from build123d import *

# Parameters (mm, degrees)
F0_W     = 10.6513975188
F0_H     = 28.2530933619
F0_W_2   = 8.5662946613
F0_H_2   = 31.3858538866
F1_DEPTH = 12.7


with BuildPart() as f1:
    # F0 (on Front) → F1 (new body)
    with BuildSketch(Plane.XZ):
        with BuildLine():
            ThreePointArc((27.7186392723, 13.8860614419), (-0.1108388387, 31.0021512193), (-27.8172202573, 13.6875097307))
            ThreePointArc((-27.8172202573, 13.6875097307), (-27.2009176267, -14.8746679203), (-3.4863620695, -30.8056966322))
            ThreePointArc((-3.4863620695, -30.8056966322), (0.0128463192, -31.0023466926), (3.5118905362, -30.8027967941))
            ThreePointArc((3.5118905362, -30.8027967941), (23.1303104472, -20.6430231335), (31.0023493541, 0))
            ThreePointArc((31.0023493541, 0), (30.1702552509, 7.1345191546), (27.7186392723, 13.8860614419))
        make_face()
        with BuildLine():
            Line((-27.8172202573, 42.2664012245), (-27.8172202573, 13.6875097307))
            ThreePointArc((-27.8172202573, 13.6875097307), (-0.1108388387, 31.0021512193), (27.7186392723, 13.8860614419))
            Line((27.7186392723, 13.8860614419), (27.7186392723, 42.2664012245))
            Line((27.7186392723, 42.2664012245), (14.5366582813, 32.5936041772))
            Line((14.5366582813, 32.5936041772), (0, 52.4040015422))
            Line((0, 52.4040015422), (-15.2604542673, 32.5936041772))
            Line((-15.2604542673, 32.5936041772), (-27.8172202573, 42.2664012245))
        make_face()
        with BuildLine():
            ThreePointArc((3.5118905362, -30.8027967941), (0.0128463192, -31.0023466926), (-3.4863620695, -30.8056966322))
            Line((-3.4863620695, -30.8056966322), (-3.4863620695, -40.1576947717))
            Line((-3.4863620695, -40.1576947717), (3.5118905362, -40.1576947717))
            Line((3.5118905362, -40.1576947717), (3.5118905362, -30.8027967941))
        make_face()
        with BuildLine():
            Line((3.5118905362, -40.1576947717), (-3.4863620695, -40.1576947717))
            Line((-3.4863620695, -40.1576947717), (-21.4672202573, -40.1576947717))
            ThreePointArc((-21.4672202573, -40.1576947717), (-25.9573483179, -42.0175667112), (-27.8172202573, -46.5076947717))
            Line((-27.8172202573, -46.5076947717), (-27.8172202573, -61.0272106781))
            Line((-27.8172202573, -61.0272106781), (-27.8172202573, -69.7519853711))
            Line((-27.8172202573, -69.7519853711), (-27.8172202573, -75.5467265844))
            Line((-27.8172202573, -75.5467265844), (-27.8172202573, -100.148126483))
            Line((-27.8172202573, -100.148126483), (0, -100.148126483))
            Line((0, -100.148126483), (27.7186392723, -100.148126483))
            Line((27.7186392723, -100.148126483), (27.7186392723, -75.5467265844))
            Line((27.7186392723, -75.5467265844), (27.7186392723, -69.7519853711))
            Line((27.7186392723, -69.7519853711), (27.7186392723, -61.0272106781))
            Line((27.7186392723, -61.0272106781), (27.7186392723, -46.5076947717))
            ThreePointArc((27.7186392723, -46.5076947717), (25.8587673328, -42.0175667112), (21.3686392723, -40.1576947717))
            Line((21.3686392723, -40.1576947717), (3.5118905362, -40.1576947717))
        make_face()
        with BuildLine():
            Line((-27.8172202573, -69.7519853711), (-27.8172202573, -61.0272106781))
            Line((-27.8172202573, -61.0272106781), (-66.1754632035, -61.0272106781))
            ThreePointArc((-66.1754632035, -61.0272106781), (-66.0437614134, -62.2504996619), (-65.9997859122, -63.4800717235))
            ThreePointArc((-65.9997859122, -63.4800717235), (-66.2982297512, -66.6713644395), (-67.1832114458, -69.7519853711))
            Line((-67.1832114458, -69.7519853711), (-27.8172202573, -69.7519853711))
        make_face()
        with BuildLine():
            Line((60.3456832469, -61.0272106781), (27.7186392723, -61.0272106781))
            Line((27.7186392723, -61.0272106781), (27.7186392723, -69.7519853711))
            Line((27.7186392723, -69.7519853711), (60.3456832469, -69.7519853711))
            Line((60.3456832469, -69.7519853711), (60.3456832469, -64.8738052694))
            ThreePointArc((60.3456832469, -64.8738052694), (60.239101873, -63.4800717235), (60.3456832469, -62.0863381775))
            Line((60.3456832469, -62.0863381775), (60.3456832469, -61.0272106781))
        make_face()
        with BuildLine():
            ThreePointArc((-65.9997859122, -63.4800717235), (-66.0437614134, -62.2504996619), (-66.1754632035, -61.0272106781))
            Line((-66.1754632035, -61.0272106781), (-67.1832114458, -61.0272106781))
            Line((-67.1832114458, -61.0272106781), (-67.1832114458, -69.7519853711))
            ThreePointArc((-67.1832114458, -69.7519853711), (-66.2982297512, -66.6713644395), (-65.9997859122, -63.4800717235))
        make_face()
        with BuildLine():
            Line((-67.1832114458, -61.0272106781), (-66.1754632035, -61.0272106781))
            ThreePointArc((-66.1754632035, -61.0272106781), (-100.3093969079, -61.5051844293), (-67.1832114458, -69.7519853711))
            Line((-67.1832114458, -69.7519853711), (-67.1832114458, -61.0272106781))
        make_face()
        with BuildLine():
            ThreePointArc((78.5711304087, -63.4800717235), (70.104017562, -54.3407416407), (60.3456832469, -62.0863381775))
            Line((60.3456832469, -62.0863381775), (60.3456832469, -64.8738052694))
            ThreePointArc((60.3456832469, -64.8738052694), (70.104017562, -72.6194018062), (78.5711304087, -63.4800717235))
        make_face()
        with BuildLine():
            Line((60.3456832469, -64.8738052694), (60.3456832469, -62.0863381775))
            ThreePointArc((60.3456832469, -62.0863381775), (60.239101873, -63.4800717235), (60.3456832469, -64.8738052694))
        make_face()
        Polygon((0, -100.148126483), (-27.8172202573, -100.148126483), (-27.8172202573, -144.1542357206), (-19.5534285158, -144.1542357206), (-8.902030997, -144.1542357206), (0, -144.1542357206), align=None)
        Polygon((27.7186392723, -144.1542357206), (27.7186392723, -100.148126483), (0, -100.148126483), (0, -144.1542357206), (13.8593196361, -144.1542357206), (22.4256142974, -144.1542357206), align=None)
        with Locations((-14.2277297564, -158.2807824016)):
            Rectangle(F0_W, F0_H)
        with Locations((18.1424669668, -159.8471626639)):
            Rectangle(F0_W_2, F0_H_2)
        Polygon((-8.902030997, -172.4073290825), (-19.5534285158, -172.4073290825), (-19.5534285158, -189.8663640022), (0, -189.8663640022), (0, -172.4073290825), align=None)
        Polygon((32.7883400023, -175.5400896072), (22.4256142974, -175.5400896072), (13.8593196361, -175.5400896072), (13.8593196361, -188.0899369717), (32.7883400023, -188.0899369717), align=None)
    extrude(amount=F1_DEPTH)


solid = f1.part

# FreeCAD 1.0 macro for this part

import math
import FreeCAD as App
import Part
import Sketcher

V = App.Vector
Q = App.Units.Quantity

doc = App.newDocument("Part")
body = doc.addObject("PartDesign::Body", "Body")

sketch1 = doc.addObject("Sketcher::SketchObject", "Sketch")
body.addObject(sketch1)
sketch1.AttachmentSupport = (doc.XZ_Plane, [""])
sketch1.MapMode = "FlatFace"
sketch1.addGeometry([
    Part.ArcOfCircle(Part.Circle(V(0, 0, 0), V(0, 0, 1), 31.002349), math.radians(153.80043), math.radians(263.543158)),
    Part.LineSegment(V(-3.486362, -30.805697, 0), V(-3.486362, -40.157695, 0)),
    Part.LineSegment(V(-3.486362, -40.157695, 0), V(-21.46722, -40.157695, 0)),
    Part.ArcOfCircle(Part.Circle(V(-21.46722, -46.507695, 0), V(0, 0, 1), 6.35), math.radians(90), math.radians(180)),
    Part.LineSegment(V(-27.81722, -46.507695, 0), V(-27.81722, -61.027211, 0)),
    Part.LineSegment(V(-27.81722, -61.027211, 0), V(-66.175463, -61.027211, 0)),
    Part.ArcOfCircle(Part.Circle(V(-83.211429, -63.480072, 0), V(0, 0, 1), 17.211644), math.radians(8.193215), math.radians(338.629371)),
    Part.LineSegment(V(-67.183211, -69.751985, 0), V(-27.81722, -69.751985, 0)),
    Part.LineSegment(V(-27.81722, -69.751985, 0), V(-27.81722, -144.154236, 0)),
    Part.LineSegment(V(-27.81722, -144.154236, 0), V(-19.553429, -144.154236, 0)),
    Part.LineSegment(V(-19.553429, -144.154236, 0), V(-19.553429, -189.866364, 0)),
    Part.LineSegment(V(-19.553429, -189.866364, 0), V(0, -189.866364, 0)),
    Part.LineSegment(V(0, -189.866364, 0), V(0, -172.407329, 0)),
    Part.LineSegment(V(0, -172.407329, 0), V(-8.902031, -172.407329, 0)),
    Part.LineSegment(V(-8.902031, -172.407329, 0), V(-8.902031, -144.154236, 0)),
    Part.LineSegment(V(-8.902031, -144.154236, 0), V(13.85932, -144.154236, 0)),
    Part.LineSegment(V(13.85932, -144.154236, 0), V(13.85932, -175.54009, 0)),
    Part.LineSegment(V(13.85932, -175.54009, 0), V(13.85932, -188.089937, 0)),
    Part.LineSegment(V(13.85932, -188.089937, 0), V(32.78834, -188.089937, 0)),
    Part.LineSegment(V(32.78834, -188.089937, 0), V(32.78834, -175.54009, 0)),
    Part.LineSegment(V(32.78834, -175.54009, 0), V(22.425614, -175.54009, 0)),
    Part.LineSegment(V(22.425614, -175.54009, 0), V(22.425614, -144.154236, 0)),
    Part.LineSegment(V(22.425614, -144.154236, 0), V(27.718639, -144.154236, 0)),
    Part.LineSegment(V(27.718639, -144.154236, 0), V(27.718639, -69.751985, 0)),
    Part.LineSegment(V(27.718639, -69.751985, 0), V(60.345683, -69.751985, 0)),
    Part.LineSegment(V(60.345683, -69.751985, 0), V(60.345683, -64.873805, 0)),
    Part.ArcOfCircle(Part.Circle(V(69.405116, -63.480072, 0), V(0, 0, 1), 9.166014), math.radians(-171.253994), math.radians(0)),
    Part.ArcOfCircle(Part.Circle(V(69.405116, -63.480072, 0), V(0, 0, 1), 9.166014), math.radians(0), math.radians(171.253994)),
    Part.LineSegment(V(60.345683, -62.086338, 0), V(60.345683, -61.027211, 0)),
    Part.LineSegment(V(60.345683, -61.027211, 0), V(27.718639, -61.027211, 0)),
    Part.LineSegment(V(27.718639, -61.027211, 0), V(27.718639, -46.507695, 0)),
    Part.ArcOfCircle(Part.Circle(V(21.368639, -46.507695, 0), V(0, 0, 1), 6.35), math.radians(0), math.radians(90)),
    Part.LineSegment(V(21.368639, -40.157695, 0), V(3.511891, -40.157695, 0)),
    Part.LineSegment(V(3.511891, -40.157695, 0), V(3.511891, -30.802797, 0)),
    Part.ArcOfCircle(Part.Circle(V(0, 0, 0), V(0, 0, 1), 31.002349), math.radians(-83.495675), math.radians(0)),
    Part.ArcOfCircle(Part.Circle(V(0, 0, 0), V(0, 0, 1), 31.002349), math.radians(0), math.radians(26.609255)),
    Part.LineSegment(V(27.718639, 13.886061, 0), V(27.718639, 42.266401, 0)),
    Part.LineSegment(V(27.718639, 42.266401, 0), V(14.536658, 32.593604, 0)),
    Part.LineSegment(V(14.536658, 32.593604, 0), V(0, 52.404002, 0)),
    Part.LineSegment(V(0, 52.404002, 0), V(-15.260454, 32.593604, 0)),
    Part.LineSegment(V(-15.260454, 32.593604, 0), V(-27.81722, 42.266401, 0)),
    Part.LineSegment(V(-27.81722, 42.266401, 0), V(-27.81722, 13.68751, 0)),
], False)
sketch1.addConstraint([
    Sketcher.Constraint("Coincident", 0, 2, 1, 1),
    Sketcher.Constraint("Coincident", 1, 2, 2, 1),
    Sketcher.Constraint("Coincident", 2, 2, 3, 1),
    Sketcher.Constraint("Coincident", 3, 2, 4, 1),
    Sketcher.Constraint("Coincident", 4, 2, 5, 1),
    Sketcher.Constraint("Coincident", 5, 2, 6, 1),
    Sketcher.Constraint("Coincident", 6, 2, 7, 1),
    Sketcher.Constraint("Coincident", 7, 2, 8, 1),
    Sketcher.Constraint("Coincident", 8, 2, 9, 1),
    Sketcher.Constraint("Coincident", 9, 2, 10, 1),
    Sketcher.Constraint("Coincident", 10, 2, 11, 1),
    Sketcher.Constraint("Coincident", 11, 2, 12, 1),
    Sketcher.Constraint("Coincident", 12, 2, 13, 1),
    Sketcher.Constraint("Coincident", 13, 2, 14, 1),
    Sketcher.Constraint("Coincident", 14, 2, 15, 1),
    Sketcher.Constraint("Coincident", 15, 2, 16, 1),
    Sketcher.Constraint("Coincident", 16, 2, 17, 1),
    Sketcher.Constraint("Coincident", 17, 2, 18, 1),
    Sketcher.Constraint("Coincident", 18, 2, 19, 1),
    Sketcher.Constraint("Coincident", 19, 2, 20, 1),
    Sketcher.Constraint("Coincident", 20, 2, 21, 1),
    Sketcher.Constraint("Coincident", 21, 2, 22, 1),
    Sketcher.Constraint("Coincident", 22, 2, 23, 1),
    Sketcher.Constraint("Coincident", 23, 2, 24, 1),
    Sketcher.Constraint("Coincident", 24, 2, 25, 1),
    Sketcher.Constraint("Coincident", 25, 2, 26, 1),
    Sketcher.Constraint("Coincident", 26, 2, 27, 1),
    Sketcher.Constraint("Coincident", 27, 2, 28, 1),
    Sketcher.Constraint("Coincident", 28, 2, 29, 1),
    Sketcher.Constraint("Coincident", 29, 2, 30, 1),
    Sketcher.Constraint("Coincident", 30, 2, 31, 1),
    Sketcher.Constraint("Coincident", 31, 2, 32, 1),
    Sketcher.Constraint("Coincident", 32, 2, 33, 1),
    Sketcher.Constraint("Coincident", 33, 2, 34, 1),
    Sketcher.Constraint("Coincident", 34, 2, 35, 1),
    Sketcher.Constraint("Coincident", 35, 2, 36, 1),
    Sketcher.Constraint("Coincident", 36, 2, 37, 1),
    Sketcher.Constraint("Coincident", 37, 2, 38, 1),
    Sketcher.Constraint("Coincident", 38, 2, 39, 1),
    Sketcher.Constraint("Coincident", 39, 2, 40, 1),
    Sketcher.Constraint("Coincident", 40, 2, 41, 1),
    Sketcher.Constraint("Coincident", 41, 2, 0, 1),
    Sketcher.Constraint("Vertical", 1),
    Sketcher.Constraint("Horizontal", 2),
    Sketcher.Constraint("Vertical", 4),
    Sketcher.Constraint("Horizontal", 5),
    Sketcher.Constraint("Horizontal", 7),
    Sketcher.Constraint("Vertical", 8),
    Sketcher.Constraint("Horizontal", 9),
    Sketcher.Constraint("Vertical", 10),
    Sketcher.Constraint("Horizontal", 11),
    Sketcher.Constraint("Vertical", 12),
    Sketcher.Constraint("Horizontal", 13),
    Sketcher.Constraint("Vertical", 14),
    Sketcher.Constraint("Horizontal", 15),
    Sketcher.Constraint("Vertical", 16),
    Sketcher.Constraint("Vertical", 17),
    Sketcher.Constraint("Horizontal", 18),
    Sketcher.Constraint("Vertical", 19),
    Sketcher.Constraint("Horizontal", 20),
    Sketcher.Constraint("Vertical", 21),
    Sketcher.Constraint("Horizontal", 22),
    Sketcher.Constraint("Vertical", 23),
    Sketcher.Constraint("Horizontal", 24),
    Sketcher.Constraint("Vertical", 25),
    Sketcher.Constraint("Vertical", 28),
    Sketcher.Constraint("Horizontal", 29),
    Sketcher.Constraint("Vertical", 30),
    Sketcher.Constraint("Horizontal", 32),
    Sketcher.Constraint("Vertical", 33),
    Sketcher.Constraint("Vertical", 36),
    Sketcher.Constraint("Vertical", 41),
    Sketcher.Constraint("Coincident", 0, 3, -1, 1),
    Sketcher.Constraint("Coincident", 34, 3, -1, 1),
    Sketcher.Constraint("Coincident", 35, 3, -1, 1),
    Sketcher.Constraint("Coincident", 27, 3, 26, 3),
    Sketcher.Constraint("PointOnObject", 11, 2, -2),
    Sketcher.Constraint("PointOnObject", 34, 2, -1),
    Sketcher.Constraint("PointOnObject", 38, 2, -2),
    Sketcher.Constraint("Radius", 3, Q("0.25 in")),
    Sketcher.Constraint("Radius", 31, Q("0.25 in")),
    Sketcher.Constraint("DistanceY", 31, 3, 1, 2, Q("0.25 in")),
    Sketcher.Constraint("DistanceX", 3, 2, 2, 2, Q("0.25 in")),
    Sketcher.Constraint("DistanceY", 3, 2, 2, 2, Q("0.25 in")),
    Sketcher.Constraint("DistanceX", 7, 2, 3, 3, Q("0.25 in")),
    Sketcher.Constraint("DistanceX", 31, 3, 23, 2, Q("0.25 in")),
    Sketcher.Constraint("DistanceY", 30, 2, 1, 2, Q("0.25 in")),
    Sketcher.Constraint("DistanceX", 31, 2, 30, 2, Q("0.25 in")),
    Sketcher.Constraint("Radius", 0, 31.002349),
    Sketcher.Constraint("Radius", 34, 31.002349),
    Sketcher.Constraint("DistanceY", 1, 2, 1, 1, 9.351998),
    Sketcher.Constraint("Radius", 6, 17.211644),
    Sketcher.Constraint("Radius", 26, 9.166014),
    Sketcher.Constraint("DistanceX", 31, 3, 26, 3, Q("1.8911999 in")),
    Sketcher.Constraint("DistanceX", 2, 2, 2, 1, 17.980858),
    Sketcher.Constraint("DistanceX", 7, 1, 7, 2, 39.365991),
    Sketcher.Constraint("DistanceX", 9, 1, 9, 2, 8.263792),
    Sketcher.Constraint("DistanceX", 11, 1, 11, 2, 19.553429),
    Sketcher.Constraint("DistanceX", 13, 2, 13, 1, 8.902031),
    Sketcher.Constraint("DistanceX", 15, 1, 15, 2, 22.761351),
    Sketcher.Constraint("DistanceX", 18, 1, 18, 2, 18.92902),
    Sketcher.Constraint("DistanceX", 32, 2, 32, 1, 17.856749),
    Sketcher.Constraint("DistanceY", 8, 2, 8, 1, 74.40225),
    Sketcher.Constraint("DistanceY", 10, 2, 10, 1, 45.712128),
    Sketcher.Constraint("DistanceY", 23, 1, 23, 2, 74.40225),
    Sketcher.Constraint("DistanceY", 25, 1, 25, 2, 4.87818),
    Sketcher.Constraint("DistanceY", 36, 1, 36, 2, 28.38034),
    Sketcher.Constraint("DistanceY", 41, 2, 41, 1, 28.578891),
    Sketcher.Constraint("DistanceY", -1, 1, 36, 2, 42.266401),
    Sketcher.Constraint("DistanceY", -1, 1, 38, 2, 52.404002),
    Sketcher.Constraint("DistanceY", -1, 1, 40, 2, 42.266401),
    Sketcher.Constraint("DistanceX", 0, 2, 31, 3, 24.855001),
    Sketcher.Constraint("DistanceX", 5, 2, 5, 1, 38.358243),
    Sketcher.Constraint("DistanceX", 20, 2, 20, 1, 10.362726),
    Sketcher.Constraint("DistanceX", 24, 1, 24, 2, 32.627044),
    Sketcher.Constraint("DistanceX", 29, 2, 29, 1, 32.627044),
    Sketcher.Constraint("DistanceY", 4, 2, 4, 1, 14.519516),
    Sketcher.Constraint("DistanceY", 12, 1, 12, 2, 17.459035),
    Sketcher.Constraint("DistanceY", 14, 1, 14, 2, 28.253093),
    Sketcher.Constraint("DistanceY", 16, 2, 16, 1, 31.385854),
    Sketcher.Constraint("DistanceY", 17, 2, 17, 1, 12.549847),
    Sketcher.Constraint("DistanceY", 19, 1, 19, 2, 12.549847),
    Sketcher.Constraint("DistanceY", 21, 1, 21, 2, 31.385854),
    Sketcher.Constraint("DistanceY", 28, 1, 28, 2, 1.059127),
    Sketcher.Constraint("DistanceY", 30, 1, 30, 2, 14.519516),
    Sketcher.Constraint("DistanceY", 26, 2, -1, 1, 63.480072),
    Sketcher.Constraint("DistanceX", -1, 1, 37, 2, 14.536658),
    Sketcher.Constraint("Distance", 37, 16.350157),
    Sketcher.Constraint("Distance", 39, 25.006665),
    Sketcher.Constraint("Distance", 40, 15.850406),
])
pad1 = doc.addObject("PartDesign::Pad", "Pad")
body.addObject(pad1)
pad1.Profile = sketch1
pad1.Length = Q("0.5 in")

doc.recompute()
